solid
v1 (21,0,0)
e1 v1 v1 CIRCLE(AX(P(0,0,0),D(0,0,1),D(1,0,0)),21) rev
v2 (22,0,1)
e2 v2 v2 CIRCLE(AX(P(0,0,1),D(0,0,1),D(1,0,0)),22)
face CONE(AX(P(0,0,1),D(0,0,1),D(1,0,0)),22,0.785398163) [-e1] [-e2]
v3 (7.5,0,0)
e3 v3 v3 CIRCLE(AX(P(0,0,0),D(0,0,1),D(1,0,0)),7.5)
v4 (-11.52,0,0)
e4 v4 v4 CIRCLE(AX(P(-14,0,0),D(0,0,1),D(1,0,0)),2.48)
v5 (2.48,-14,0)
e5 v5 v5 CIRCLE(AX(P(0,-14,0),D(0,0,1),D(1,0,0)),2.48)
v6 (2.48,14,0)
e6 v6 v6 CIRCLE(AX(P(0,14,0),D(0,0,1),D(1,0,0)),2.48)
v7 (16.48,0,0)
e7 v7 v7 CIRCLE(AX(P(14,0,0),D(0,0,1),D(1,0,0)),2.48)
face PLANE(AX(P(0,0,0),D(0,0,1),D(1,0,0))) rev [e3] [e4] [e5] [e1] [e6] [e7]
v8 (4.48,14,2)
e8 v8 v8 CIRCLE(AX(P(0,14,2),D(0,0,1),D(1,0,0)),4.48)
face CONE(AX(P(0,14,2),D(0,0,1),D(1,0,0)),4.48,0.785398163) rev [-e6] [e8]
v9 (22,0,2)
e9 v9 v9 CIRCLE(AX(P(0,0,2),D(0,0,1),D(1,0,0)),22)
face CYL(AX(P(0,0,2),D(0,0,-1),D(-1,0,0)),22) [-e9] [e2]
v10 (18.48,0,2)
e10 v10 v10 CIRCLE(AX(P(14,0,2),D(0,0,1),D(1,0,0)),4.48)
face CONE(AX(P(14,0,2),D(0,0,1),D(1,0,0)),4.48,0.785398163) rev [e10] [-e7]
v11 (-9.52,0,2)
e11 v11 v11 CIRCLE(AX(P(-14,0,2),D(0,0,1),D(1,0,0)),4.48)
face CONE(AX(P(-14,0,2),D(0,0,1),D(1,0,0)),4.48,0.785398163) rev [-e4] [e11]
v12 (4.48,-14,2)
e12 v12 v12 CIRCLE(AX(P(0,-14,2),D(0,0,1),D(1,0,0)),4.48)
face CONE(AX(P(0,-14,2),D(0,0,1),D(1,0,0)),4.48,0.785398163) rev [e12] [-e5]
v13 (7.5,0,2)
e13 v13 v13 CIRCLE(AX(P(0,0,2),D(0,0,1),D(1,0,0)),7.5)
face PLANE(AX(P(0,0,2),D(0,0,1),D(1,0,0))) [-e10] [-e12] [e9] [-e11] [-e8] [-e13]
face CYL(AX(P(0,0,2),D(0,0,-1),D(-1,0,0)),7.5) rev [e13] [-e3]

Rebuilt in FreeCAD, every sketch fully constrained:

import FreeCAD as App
import Part
import Sketcher
Q = App.Units.Quantity


def edges_at(feature, points):
    """Names of the edges that pass closest to the given points."""
    edges = feature.Shape.Edges
    near = lambda p: min(range(len(edges)), key=lambda i: edges[i].distToShape(Part.Vertex(*p))[0])
    return sorted({f"Edge{near(p) + 1}" for p in points})

doc = App.newDocument("Part")
body = doc.addObject("PartDesign::Body", "Body")

sketch1 = body.newObject("Sketcher::SketchObject", "Sketch")
sketch1.AttachmentSupport = (doc.getObject("XY_Plane"), [""])
sketch1.MapMode = "FlatFace"
sketch1.addGeometry([
    Part.Circle(App.Vector(0, 0, 0), App.Vector(0, 0, 1), 22),
    Part.Circle(App.Vector(0, 0, 0), App.Vector(0, 0, 1), 8),
], False)
sketch1.addConstraint([
    Sketcher.Constraint("Coincident", 0, 3, -1, 1),
    Sketcher.Constraint("Coincident", 1, 3, -1, 1),
    Sketcher.Constraint("Diameter", 0, 44.0),
    Sketcher.Constraint("Diameter", 1, 15.0),
])
pad1 = body.newObject("PartDesign::Pad", "Pad")
pad1.Profile = sketch1
pad1.Length = 2
doc.recompute()

chamfer = body.newObject("PartDesign::Chamfer", "Chamfer")
chamfer.Base = (pad1, edges_at(pad1, [(-22, 0, 0)]))
chamfer.Size = 1

sketch2 = body.newObject("Sketcher::SketchObject", "Sketch001")
sketch2.AttachmentSupport = (doc.getObject("YZ_Plane"), [""])
sketch2.MapMode = "FlatFace"
sketch2.addGeometry([
    Part.LineSegment(App.Vector(14, 0, 0), App.Vector(14, 2, 0)),
    Part.LineSegment(App.Vector(14, 2, 0), App.Vector(9.52, 2, 0)),
    Part.LineSegment(App.Vector(9.52, 2, 0), App.Vector(11.75, -0.23, 0)),
    Part.LineSegment(App.Vector(11.75, -0.23, 0), App.Vector(11.75, 0, 0)),
    Part.LineSegment(App.Vector(11.75, 0, 0), App.Vector(14, 0, 0)),
], False)
sketch2.addGeometry(Part.LineSegment(App.Vector(14, 2, 0), App.Vector(14, -0.23, 0)), True)
sketch2.addConstraint([
    Sketcher.Constraint("Coincident", 0, 2, 1, 1),
    Sketcher.Constraint("Coincident", 1, 2, 2, 1),
    Sketcher.Constraint("Coincident", 2, 2, 3, 1),
    Sketcher.Constraint("Coincident", 3, 2, 4, 1),
    Sketcher.Constraint("Coincident", 4, 2, 0, 1),
    Sketcher.Constraint("Vertical", 0),
    Sketcher.Constraint("Horizontal", 1),
    Sketcher.Constraint("Vertical", 3),
    Sketcher.Constraint("Horizontal", 4),
    Sketcher.Constraint("Vertical", 5),
    Sketcher.Constraint("Coincident", 5, 1, 0, 2),
    Sketcher.Constraint("PointOnObject", 3, 2, -1),
    Sketcher.Constraint("Horizontal", 2, 2, 5, 2),
    Sketcher.Constraint("DistanceY", 0, 1, 0, 2, 2.0),
    Sketcher.Constraint("Angle", 2, Q("-45 deg")),
    Sketcher.Constraint("DistanceX", -1, 1, 0, 2, 14.0),
    Sketcher.Constraint("DistanceX", 1, 2, 1, 1, 4.48),
    Sketcher.Constraint("DistanceX", 4, 1, 4, 2, 2.25),
])
groove = body.newObject("PartDesign::Groove", "Groove")
groove.Profile = sketch2
groove.ReferenceAxis = (sketch2, ["Axis0"])
groove.Angle = 360
doc.recompute()

linearpattern = body.newObject("PartDesign::LinearPattern", "LinearPattern")
linearpattern.Originals = [groove]
linearpattern.Direction = (doc.getObject("Y_Axis"), [""])
linearpattern.Mode = "offset"
linearpattern.Offset = 28
linearpattern.Occurrences = 2
linearpattern.Reversed = True
body.Tip = linearpattern
doc.recompute()

datumline = body.newObject("PartDesign::Line", "DatumLine")
datumline.Placement = App.Placement(App.Vector(0, 0, 0), App.Rotation(App.Vector(0, 0, 1), App.Vector(-0.707106781, -0.707106781, 0)))
linearpattern2 = body.newObject("PartDesign::LinearPattern", "LinearPattern001")
linearpattern2.Originals = [groove]
linearpattern2.Direction = (datumline, [""])
linearpattern2.Mode = "offset"
linearpattern2.Offset = 19.79899
linearpattern2.Occurrences = 2
body.Tip = linearpattern2
doc.recompute()

datumline2 = body.newObject("PartDesign::Line", "DatumLine001")
datumline2.Placement = App.Placement(App.Vector(0, 0, 0), App.Rotation(App.Vector(0, 0, 1), App.Vector(0.707106781, -0.707106781, 0)))
linearpattern3 = body.newObject("PartDesign::LinearPattern", "LinearPattern002")
linearpattern3.Originals = [groove]
linearpattern3.Direction = (datumline2, [""])
linearpattern3.Mode = "offset"
linearpattern3.Offset = 19.79899
linearpattern3.Occurrences = 2
body.Tip = linearpattern3

doc.recompute()
